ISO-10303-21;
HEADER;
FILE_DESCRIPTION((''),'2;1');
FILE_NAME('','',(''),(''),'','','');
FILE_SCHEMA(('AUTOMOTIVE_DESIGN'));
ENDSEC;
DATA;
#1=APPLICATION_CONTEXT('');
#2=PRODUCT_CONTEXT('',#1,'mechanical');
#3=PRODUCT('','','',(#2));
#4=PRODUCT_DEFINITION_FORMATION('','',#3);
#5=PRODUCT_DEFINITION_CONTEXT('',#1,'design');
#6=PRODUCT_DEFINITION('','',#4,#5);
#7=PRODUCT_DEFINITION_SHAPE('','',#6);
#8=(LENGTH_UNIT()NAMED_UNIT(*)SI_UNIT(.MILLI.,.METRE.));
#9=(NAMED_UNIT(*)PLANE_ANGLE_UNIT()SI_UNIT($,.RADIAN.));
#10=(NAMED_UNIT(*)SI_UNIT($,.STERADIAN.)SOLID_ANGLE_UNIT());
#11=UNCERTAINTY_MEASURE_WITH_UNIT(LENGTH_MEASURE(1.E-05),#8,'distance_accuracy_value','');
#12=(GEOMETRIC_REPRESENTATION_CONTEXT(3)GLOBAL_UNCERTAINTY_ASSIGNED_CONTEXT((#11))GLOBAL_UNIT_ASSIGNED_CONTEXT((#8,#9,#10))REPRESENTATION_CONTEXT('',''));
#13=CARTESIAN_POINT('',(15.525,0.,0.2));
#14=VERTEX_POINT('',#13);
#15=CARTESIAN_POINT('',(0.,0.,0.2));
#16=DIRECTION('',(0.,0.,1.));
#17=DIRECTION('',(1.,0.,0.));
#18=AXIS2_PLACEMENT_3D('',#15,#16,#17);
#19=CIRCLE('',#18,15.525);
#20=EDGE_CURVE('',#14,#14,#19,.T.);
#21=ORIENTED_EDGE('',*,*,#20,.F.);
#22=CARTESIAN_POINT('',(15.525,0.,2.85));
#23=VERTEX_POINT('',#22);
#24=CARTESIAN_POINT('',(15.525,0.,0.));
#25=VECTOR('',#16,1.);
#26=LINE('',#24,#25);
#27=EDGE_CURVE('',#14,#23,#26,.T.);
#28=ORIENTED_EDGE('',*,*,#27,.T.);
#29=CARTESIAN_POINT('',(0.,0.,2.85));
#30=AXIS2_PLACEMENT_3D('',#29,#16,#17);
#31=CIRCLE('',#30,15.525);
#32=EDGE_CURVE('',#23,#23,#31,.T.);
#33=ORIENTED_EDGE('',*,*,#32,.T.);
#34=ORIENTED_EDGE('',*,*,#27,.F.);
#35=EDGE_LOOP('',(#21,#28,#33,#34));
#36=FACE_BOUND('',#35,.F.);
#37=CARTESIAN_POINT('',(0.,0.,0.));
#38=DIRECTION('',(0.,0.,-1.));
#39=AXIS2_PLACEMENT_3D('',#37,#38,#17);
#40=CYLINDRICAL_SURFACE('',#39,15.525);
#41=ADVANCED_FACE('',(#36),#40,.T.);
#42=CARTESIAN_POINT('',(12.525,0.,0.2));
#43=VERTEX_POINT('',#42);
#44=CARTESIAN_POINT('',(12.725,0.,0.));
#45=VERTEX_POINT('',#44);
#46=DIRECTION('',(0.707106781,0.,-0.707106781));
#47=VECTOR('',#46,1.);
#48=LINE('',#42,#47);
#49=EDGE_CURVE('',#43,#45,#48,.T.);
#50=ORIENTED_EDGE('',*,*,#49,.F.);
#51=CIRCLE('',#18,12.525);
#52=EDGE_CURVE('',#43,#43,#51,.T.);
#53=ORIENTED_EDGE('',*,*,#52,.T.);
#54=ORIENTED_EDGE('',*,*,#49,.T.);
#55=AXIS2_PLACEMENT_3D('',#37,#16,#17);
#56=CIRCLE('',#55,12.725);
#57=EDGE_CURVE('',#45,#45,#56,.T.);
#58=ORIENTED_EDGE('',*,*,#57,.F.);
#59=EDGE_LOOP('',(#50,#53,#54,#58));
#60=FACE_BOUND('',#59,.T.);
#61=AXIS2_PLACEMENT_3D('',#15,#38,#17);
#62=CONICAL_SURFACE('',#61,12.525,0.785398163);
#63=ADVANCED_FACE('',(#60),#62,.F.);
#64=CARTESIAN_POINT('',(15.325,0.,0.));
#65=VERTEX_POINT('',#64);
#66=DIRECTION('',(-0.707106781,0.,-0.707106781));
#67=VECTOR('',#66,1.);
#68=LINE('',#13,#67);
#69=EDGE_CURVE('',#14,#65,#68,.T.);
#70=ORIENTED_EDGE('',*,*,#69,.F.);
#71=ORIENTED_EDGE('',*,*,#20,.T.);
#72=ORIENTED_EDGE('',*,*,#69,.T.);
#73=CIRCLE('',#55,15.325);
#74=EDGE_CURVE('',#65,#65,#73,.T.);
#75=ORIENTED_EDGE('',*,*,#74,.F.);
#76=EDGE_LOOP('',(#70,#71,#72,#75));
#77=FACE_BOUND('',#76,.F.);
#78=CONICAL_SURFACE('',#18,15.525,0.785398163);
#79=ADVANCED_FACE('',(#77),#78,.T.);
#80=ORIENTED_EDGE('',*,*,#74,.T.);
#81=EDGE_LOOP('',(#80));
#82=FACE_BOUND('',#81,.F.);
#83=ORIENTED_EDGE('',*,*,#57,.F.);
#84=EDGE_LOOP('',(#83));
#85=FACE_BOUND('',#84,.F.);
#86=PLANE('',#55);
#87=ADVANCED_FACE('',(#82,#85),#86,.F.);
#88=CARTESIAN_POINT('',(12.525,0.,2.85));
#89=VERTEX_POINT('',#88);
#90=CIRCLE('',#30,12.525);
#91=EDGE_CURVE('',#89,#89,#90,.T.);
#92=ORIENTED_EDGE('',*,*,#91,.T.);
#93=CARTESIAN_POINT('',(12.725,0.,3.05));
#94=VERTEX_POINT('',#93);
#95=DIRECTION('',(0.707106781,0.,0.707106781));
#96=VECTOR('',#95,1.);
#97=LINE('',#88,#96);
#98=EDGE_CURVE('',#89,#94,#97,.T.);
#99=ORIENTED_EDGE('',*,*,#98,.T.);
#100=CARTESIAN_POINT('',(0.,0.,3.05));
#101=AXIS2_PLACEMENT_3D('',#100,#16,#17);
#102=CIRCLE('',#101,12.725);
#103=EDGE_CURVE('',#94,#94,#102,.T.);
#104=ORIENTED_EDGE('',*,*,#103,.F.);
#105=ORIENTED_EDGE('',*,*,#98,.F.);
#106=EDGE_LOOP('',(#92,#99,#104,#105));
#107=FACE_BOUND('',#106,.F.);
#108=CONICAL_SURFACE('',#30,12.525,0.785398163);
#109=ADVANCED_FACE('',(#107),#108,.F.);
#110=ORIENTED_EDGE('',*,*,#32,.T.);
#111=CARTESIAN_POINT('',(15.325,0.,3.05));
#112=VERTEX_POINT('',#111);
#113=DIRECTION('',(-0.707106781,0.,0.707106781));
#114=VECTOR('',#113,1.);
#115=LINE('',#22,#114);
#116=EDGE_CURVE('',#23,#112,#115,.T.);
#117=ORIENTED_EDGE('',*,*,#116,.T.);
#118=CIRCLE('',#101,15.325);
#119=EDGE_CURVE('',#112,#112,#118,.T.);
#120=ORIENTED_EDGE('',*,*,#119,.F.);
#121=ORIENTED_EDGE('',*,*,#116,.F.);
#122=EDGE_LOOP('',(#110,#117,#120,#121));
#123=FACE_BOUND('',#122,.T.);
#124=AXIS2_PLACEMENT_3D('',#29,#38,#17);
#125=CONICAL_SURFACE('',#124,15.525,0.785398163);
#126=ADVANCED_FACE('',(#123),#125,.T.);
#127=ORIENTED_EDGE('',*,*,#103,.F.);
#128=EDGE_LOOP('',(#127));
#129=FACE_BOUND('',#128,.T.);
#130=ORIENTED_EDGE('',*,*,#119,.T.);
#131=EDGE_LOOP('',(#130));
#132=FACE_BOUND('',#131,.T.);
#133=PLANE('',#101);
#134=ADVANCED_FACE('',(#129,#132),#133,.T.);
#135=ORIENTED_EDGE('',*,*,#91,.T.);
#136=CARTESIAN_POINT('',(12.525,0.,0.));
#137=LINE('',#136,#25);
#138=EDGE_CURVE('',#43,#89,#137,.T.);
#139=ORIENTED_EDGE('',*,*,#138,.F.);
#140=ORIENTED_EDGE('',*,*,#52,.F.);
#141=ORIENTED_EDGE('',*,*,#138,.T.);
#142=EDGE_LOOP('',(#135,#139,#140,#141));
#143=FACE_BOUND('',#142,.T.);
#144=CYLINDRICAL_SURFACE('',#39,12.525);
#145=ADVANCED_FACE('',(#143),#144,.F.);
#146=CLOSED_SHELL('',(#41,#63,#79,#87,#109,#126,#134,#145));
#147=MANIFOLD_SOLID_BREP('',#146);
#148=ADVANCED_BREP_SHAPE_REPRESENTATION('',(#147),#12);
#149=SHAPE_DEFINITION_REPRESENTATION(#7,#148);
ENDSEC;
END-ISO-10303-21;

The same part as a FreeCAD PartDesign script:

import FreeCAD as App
import Part
import Sketcher

V = App.Vector


def edges_at(feature, points):
    """Names of the edges that pass closest to the given points."""
    edges = feature.Shape.Edges
    near = lambda p: min(range(len(edges)), key=lambda i: edges[i].distToShape(Part.Vertex(*p))[0])
    return sorted({f"Edge{near(p) + 1}" for p in points})

doc = App.newDocument("Part")
body = doc.addObject("PartDesign::Body", "Body")

# Sketch on XY plane
sketch1 = body.newObject("Sketcher::SketchObject", "Sketch")
sketch1.AttachmentSupport = (doc.getObject("XY_Plane"), [""])
sketch1.MapMode = "FlatFace"
sketch1.addGeometry([
    Part.Circle(V(0, 0, 0), V(0, 0, 1), 15.525),
    Part.Circle(V(0, 0, 0), V(0, 0, 1), 12.525),
], False)
sketch1.addConstraint([
    Sketcher.Constraint("Coincident", 0, 3, -1, 1),
    Sketcher.Constraint("Coincident", 1, 3, -1, 1),
    Sketcher.Constraint("Diameter", 0, 31.05),
    Sketcher.Constraint("Diameter", 1, 25.05),
])
pad1 = body.newObject("PartDesign::Pad", "Pad")
pad1.Profile = sketch1
pad1.Length = 3.05
doc.recompute()

chamfer = body.newObject("PartDesign::Chamfer", "Chamfer")
chamfer.Base = (pad1, edges_at(pad1, [
    (-15.525, 0, 3.05),
    (-15.525, 0, 0),
    (-12.525, 0, 0),
    (-12.525, 0, 3.05),
]))
chamfer.Size = 0.2

doc.recompute()
